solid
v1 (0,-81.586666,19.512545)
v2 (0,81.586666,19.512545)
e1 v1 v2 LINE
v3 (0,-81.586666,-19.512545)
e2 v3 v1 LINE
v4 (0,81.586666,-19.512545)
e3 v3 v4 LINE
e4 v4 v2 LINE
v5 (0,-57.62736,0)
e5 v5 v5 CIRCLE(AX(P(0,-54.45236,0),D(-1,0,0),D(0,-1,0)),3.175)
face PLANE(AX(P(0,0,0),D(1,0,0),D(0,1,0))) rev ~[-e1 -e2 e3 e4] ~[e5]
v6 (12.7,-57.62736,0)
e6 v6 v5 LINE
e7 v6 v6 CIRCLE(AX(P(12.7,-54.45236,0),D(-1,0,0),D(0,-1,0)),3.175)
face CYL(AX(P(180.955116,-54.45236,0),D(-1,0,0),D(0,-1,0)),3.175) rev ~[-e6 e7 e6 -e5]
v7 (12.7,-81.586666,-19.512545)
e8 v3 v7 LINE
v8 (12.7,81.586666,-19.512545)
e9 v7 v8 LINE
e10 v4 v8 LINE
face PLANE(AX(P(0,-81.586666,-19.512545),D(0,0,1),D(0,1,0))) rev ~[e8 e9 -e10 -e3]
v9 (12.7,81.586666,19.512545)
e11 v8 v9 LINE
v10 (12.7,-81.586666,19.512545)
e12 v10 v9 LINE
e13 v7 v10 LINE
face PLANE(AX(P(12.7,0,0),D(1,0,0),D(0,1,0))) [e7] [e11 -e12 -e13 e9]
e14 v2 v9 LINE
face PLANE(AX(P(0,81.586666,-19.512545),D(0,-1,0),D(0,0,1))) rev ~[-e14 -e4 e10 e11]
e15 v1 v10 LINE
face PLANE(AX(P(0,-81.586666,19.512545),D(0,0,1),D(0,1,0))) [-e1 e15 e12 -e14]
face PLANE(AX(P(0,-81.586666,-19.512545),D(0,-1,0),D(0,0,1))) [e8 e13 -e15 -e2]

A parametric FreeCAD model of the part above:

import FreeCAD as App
import Part
import Sketcher
Q = App.Units.Quantity


def add_polygon(sketch, points):
    """Adds a closed chain of lines whose ends are joined by coincident constraints."""
    first, n = sketch.GeometryCount, len(points)
    for a, b in zip(points, points[1:] + points[:1]):
        sketch.addGeometry(Part.LineSegment(App.Vector(*a, 0), App.Vector(*b, 0)), False)
    for i in range(n):
        sketch.addConstraint(Sketcher.Constraint("Coincident", first + i, 2, first + (i + 1) % n, 1))

doc = App.newDocument("Part")
body = doc.addObject("PartDesign::Body", "Body")

# Sketch on YZ plane
sketch1 = body.newObject("Sketcher::SketchObject", "Sketch")
sketch1.AttachmentSupport = (doc.getObject("YZ_Plane"), [""])
sketch1.MapMode = "FlatFace"
add_polygon(sketch1, [(-82, 20), (-82, -20), (82, -20), (82, 20)])  # lines 0-3
sketch1.addConstraint(Sketcher.Constraint("Vertical", 0))
sketch1.addConstraint(Sketcher.Constraint("Horizontal", 1))
sketch1.addConstraint(Sketcher.Constraint("Vertical", 2))
sketch1.addConstraint(Sketcher.Constraint("Horizontal", 3))
sketch1.addConstraint(Sketcher.Constraint("Symmetric", 0, 2, 2, 2, -1, 1))
sketch1.addConstraint(Sketcher.Constraint("DistanceX", 1, 1, 1, 2, 163.173332))
sketch1.addConstraint(Sketcher.Constraint("DistanceY", 0, 2, 0, 1, 39.02509))
pad1 = body.newObject("PartDesign::Pad", "Pad")
pad1.Profile = sketch1
pad1.Length = Q("0.5 in")

# Sketch on YZ plane
sketch2 = body.newObject("Sketcher::SketchObject", "Sketch001")
sketch2.AttachmentSupport = (doc.getObject("YZ_Plane"), [""])
sketch2.MapMode = "FlatFace"
sketch2.AttachmentOffset = App.Placement(App.Vector(0, 0, 0.5 * 25.4), App.Rotation())
sketch2.addGeometry(Part.Circle(App.Vector(-54.5, 0, 0), App.Vector(0, 0, 1), 3.2), False)
sketch2.addConstraint(Sketcher.Constraint("PointOnObject", 0, 3, -1))
sketch2.addConstraint(Sketcher.Constraint("Diameter", 0, Q("0.25 in")))
sketch2.addConstraint(Sketcher.Constraint("DistanceX", 0, 3, -1, 1, 54.45236))
doc.recompute()
hole = body.newObject("PartDesign::Hole", "Hole")
hole.Profile = sketch2
hole.ThreadType = "None"
hole.Diameter = Q("0.25 in")
hole.DepthType = "ThroughAll"

doc.recompute()
